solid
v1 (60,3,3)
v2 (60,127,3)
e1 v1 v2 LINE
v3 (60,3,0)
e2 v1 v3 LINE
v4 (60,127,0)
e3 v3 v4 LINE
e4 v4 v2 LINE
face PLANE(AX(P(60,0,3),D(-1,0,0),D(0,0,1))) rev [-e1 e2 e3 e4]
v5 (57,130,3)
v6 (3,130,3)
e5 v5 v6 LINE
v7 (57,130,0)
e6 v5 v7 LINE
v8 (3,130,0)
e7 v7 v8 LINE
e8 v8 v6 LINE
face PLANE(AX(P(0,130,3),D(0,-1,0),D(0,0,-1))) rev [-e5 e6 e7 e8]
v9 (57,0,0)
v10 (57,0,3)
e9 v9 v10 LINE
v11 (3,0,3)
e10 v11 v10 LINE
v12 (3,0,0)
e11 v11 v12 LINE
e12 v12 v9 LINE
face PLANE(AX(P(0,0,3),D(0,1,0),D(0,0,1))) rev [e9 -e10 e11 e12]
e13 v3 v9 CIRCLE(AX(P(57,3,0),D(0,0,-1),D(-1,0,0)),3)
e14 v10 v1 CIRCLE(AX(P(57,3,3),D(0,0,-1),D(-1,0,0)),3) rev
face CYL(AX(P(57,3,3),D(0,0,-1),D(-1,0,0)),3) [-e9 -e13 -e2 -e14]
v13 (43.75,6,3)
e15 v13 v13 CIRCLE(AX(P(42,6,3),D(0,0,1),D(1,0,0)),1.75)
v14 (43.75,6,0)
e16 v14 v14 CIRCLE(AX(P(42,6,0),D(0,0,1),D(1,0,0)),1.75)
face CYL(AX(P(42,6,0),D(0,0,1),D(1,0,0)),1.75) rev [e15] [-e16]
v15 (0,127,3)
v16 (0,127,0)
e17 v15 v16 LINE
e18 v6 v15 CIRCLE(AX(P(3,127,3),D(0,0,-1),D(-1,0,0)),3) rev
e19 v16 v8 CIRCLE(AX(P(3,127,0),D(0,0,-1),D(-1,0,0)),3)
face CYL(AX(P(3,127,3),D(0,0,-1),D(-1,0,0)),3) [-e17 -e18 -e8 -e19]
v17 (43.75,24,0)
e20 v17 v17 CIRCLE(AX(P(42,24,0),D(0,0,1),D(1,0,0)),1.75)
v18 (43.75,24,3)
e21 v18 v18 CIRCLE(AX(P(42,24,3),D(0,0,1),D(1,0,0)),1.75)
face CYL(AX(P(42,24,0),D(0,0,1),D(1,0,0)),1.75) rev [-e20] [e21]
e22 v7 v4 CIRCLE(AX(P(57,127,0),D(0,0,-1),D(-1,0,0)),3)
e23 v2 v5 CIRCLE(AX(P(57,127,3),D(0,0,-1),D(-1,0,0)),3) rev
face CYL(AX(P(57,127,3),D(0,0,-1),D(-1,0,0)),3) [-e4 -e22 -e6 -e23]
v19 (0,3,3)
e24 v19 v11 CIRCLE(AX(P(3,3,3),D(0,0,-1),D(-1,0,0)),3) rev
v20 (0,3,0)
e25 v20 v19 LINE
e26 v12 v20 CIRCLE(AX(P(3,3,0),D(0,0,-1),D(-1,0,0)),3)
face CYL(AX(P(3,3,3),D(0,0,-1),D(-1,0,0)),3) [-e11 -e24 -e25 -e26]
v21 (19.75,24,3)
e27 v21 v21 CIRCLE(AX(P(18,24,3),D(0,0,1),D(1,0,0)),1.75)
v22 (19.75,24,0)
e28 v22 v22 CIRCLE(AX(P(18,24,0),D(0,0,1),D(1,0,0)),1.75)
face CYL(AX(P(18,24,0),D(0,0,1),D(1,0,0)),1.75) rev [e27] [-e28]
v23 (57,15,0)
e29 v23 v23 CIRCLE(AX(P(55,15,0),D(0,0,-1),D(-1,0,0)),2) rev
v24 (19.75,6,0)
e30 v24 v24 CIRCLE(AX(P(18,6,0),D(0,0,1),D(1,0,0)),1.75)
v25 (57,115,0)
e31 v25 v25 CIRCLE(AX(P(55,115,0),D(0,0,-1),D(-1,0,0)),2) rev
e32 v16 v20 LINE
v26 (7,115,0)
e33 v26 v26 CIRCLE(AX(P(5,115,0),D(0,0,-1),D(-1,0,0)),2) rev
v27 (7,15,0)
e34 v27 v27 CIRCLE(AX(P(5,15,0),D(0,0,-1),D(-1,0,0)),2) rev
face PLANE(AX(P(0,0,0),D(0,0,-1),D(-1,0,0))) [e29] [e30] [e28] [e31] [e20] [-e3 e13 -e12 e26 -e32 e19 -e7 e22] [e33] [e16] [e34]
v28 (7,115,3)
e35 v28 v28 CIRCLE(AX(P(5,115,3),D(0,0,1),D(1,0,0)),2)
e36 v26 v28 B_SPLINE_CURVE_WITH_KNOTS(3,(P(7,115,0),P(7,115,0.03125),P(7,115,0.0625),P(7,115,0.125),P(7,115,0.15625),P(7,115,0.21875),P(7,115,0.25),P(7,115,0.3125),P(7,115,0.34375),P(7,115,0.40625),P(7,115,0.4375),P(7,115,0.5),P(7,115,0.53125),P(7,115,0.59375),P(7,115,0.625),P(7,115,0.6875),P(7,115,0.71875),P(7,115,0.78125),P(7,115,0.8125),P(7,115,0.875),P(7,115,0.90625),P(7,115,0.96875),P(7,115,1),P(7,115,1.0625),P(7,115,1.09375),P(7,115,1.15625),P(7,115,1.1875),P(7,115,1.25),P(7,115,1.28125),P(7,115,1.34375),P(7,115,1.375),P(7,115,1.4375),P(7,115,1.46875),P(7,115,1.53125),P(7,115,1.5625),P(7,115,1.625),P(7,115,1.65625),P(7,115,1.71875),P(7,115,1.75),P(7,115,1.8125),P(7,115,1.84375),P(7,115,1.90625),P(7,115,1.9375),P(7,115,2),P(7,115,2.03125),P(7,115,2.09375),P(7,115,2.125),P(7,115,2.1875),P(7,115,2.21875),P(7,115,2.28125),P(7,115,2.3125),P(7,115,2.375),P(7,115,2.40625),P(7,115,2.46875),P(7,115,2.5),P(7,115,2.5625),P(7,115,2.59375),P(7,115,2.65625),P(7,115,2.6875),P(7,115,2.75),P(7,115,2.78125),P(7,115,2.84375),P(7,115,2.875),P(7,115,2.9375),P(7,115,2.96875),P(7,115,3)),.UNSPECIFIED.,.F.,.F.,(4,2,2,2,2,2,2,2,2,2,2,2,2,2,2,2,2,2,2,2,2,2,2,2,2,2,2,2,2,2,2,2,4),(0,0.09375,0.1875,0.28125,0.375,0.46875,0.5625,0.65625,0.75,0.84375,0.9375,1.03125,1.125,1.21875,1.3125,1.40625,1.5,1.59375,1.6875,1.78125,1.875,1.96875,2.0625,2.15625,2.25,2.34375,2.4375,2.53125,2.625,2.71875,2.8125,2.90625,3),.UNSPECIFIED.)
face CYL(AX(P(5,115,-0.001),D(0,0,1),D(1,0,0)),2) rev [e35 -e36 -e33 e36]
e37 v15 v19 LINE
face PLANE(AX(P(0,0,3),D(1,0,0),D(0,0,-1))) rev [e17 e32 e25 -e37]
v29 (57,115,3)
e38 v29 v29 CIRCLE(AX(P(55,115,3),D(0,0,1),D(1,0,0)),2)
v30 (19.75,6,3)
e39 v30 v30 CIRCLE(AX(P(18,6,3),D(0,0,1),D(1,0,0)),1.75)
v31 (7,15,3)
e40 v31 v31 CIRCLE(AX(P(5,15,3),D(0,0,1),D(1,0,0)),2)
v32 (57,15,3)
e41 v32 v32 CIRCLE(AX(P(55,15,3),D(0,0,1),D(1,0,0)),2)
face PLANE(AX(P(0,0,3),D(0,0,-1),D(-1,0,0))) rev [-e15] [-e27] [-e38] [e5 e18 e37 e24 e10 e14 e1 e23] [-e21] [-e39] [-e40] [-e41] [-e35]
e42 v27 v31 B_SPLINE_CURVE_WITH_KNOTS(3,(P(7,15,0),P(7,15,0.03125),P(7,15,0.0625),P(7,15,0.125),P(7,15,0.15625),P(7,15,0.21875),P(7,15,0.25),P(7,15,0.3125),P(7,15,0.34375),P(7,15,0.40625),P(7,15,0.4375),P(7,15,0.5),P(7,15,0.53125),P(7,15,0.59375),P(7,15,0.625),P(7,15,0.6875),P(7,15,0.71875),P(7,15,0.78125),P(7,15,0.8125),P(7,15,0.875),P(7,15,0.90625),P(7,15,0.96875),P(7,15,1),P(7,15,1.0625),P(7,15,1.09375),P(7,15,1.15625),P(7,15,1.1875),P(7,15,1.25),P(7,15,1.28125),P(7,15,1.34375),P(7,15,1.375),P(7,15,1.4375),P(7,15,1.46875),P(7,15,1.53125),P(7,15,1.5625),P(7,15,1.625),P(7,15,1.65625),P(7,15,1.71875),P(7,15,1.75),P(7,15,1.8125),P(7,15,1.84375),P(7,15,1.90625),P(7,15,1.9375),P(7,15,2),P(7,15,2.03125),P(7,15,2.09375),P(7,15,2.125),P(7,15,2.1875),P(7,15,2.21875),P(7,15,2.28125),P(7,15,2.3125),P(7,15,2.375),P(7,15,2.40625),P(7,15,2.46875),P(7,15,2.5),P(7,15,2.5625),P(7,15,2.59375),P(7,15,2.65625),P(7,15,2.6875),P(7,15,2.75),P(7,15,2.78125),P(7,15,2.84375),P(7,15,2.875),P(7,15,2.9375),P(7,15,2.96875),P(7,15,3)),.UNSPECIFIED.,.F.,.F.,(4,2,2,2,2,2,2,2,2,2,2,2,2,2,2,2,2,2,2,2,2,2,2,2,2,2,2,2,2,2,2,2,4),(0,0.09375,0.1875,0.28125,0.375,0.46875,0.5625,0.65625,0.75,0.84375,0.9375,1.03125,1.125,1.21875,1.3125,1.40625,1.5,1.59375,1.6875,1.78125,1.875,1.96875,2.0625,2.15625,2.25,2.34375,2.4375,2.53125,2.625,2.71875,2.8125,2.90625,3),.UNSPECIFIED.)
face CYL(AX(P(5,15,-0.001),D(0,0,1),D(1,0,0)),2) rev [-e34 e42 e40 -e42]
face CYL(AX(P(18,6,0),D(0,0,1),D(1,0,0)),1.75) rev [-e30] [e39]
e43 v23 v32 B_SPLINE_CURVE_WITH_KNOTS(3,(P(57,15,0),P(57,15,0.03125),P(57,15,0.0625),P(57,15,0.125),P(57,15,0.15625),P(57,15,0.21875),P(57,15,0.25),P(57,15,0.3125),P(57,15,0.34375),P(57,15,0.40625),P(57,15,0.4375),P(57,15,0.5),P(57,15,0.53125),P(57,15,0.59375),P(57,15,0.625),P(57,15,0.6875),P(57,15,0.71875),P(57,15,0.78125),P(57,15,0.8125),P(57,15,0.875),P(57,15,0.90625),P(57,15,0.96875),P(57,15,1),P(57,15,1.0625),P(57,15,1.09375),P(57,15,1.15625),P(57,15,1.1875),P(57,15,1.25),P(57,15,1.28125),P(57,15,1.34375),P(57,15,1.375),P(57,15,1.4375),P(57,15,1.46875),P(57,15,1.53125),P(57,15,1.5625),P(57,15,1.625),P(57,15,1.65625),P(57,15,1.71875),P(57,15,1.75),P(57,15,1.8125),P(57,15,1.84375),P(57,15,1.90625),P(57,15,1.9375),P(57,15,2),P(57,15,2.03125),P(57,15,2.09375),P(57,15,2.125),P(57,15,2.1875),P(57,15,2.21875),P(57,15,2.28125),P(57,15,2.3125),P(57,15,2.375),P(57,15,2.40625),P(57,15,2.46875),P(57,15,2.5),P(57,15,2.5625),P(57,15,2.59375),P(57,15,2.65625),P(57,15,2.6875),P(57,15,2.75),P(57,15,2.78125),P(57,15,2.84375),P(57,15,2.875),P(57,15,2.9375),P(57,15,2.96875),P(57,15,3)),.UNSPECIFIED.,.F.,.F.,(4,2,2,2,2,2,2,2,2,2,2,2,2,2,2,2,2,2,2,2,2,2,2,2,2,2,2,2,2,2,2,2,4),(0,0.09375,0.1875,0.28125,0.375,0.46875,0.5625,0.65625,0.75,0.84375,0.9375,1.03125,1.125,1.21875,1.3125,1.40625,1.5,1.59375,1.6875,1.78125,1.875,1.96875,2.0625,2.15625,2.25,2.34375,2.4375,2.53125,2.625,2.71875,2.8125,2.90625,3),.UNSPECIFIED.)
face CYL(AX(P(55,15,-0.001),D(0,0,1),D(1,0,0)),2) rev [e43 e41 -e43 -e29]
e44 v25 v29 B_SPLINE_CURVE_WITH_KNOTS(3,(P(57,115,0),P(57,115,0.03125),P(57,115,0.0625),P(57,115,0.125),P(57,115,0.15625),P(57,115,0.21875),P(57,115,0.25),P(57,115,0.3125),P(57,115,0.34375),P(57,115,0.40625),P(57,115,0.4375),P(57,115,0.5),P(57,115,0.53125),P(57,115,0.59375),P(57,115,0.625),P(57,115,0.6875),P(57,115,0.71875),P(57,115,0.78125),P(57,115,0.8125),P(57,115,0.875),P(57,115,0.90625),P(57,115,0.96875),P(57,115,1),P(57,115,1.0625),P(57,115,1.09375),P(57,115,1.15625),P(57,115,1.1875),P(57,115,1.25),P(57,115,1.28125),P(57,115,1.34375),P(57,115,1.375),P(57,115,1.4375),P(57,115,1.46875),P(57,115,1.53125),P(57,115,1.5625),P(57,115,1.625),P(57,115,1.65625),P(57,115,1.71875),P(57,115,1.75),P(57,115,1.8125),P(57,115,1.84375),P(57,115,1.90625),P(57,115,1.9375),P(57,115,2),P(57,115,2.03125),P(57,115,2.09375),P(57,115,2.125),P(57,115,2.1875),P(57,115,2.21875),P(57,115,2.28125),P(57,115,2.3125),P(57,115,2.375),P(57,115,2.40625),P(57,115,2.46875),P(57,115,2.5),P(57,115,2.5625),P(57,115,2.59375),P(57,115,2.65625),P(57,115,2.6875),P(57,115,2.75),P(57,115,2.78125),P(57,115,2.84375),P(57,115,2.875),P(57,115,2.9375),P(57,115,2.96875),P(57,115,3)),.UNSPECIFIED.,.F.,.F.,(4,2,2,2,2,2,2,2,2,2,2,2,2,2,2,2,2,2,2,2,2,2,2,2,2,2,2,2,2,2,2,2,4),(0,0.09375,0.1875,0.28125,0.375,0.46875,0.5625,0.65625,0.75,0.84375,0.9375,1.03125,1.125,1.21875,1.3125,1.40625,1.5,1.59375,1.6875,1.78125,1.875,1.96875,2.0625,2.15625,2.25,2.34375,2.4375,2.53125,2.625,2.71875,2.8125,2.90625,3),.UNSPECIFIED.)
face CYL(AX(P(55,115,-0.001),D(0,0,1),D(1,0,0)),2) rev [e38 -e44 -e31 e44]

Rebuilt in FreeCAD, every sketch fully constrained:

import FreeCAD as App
import Part
import Sketcher
from FreeCAD import Vector


def edges_at(feature, points):
    """Names of the edges that pass closest to the given points."""
    edges = feature.Shape.Edges
    near = lambda p: min(range(len(edges)), key=lambda i: edges[i].distToShape(Part.Vertex(*p))[0])
    return sorted({f"Edge{near(p) + 1}" for p in points})


def add_polygon(sketch, points):
    """Adds a closed chain of lines whose ends are joined by coincident constraints."""
    first, n = sketch.GeometryCount, len(points)
    for a, b in zip(points, points[1:] + points[:1]):
        sketch.addGeometry(Part.LineSegment(App.Vector(*a, 0), App.Vector(*b, 0)), False)
    for i in range(n):
        sketch.addConstraint(Sketcher.Constraint("Coincident", first + i, 2, first + (i + 1) % n, 1))

doc = App.newDocument("Part")
body = doc.addObject("PartDesign::Body", "Body")

sketch1 = body.newObject("Sketcher::SketchObject", "Sketch")
sketch1.AttachmentSupport = (doc.getObject("XY_Plane"), [""])
sketch1.MapMode = "FlatFace"
add_polygon(sketch1, [(0, 130), (0, 0), (60, 0), (60, 130)])
sketch1.addConstraint([
    Sketcher.Constraint("Vertical", 0),
    Sketcher.Constraint("Horizontal", 1),
    Sketcher.Constraint("Vertical", 2),
    Sketcher.Constraint("Horizontal", 3),
    Sketcher.Constraint("Coincident", 0, 2, -1, 1),
    Sketcher.Constraint("DistanceX", 1, 1, 1, 2, 60.0),
    Sketcher.Constraint("DistanceY", 0, 2, 0, 1, 130.0),
])
pad1 = body.newObject("PartDesign::Pad", "Pad")
pad1.Profile = sketch1
pad1.Length = 3

sketch2 = body.newObject("Sketcher::SketchObject", "Sketch001")
sketch2.AttachmentSupport = (doc.getObject("XY_Plane"), [""])
sketch2.MapMode = "FlatFace"
sketch2.AttachmentOffset = App.Placement(Vector(0, 0, 3), App.Rotation())
sketch2.addGeometry(Part.Circle(Vector(5, 115, 0), Vector(0, 0, 1), 2), False)
sketch2.addConstraint([
    Sketcher.Constraint("Diameter", 0, 4.0),
    Sketcher.Constraint("DistanceX", -1, 1, 0, 3, 5.0),
    Sketcher.Constraint("DistanceY", -1, 1, 0, 3, 115.0),
])
pocket1 = body.newObject("PartDesign::Pocket", "Pocket")
pocket1.Profile = sketch2
pocket1.Type = "UpToFirst"

sketch3 = body.newObject("Sketcher::SketchObject", "Sketch002")
sketch3.AttachmentSupport = (doc.getObject("XY_Plane"), [""])
sketch3.MapMode = "FlatFace"
sketch3.AttachmentOffset = App.Placement(Vector(0, 0, 3), App.Rotation())
sketch3.addGeometry(Part.Circle(Vector(55, 115, 0), Vector(0, 0, 1), 2), False)
sketch3.addConstraint([
    Sketcher.Constraint("Diameter", 0, 4.0),
    Sketcher.Constraint("DistanceX", -1, 1, 0, 3, 55.0),
    Sketcher.Constraint("DistanceY", -1, 1, 0, 3, 115.0),
])
pocket2 = body.newObject("PartDesign::Pocket", "Pocket001")
pocket2.Profile = sketch3
pocket2.Type = "UpToFirst"

sketch4 = body.newObject("Sketcher::SketchObject", "Sketch003")
sketch4.AttachmentSupport = (doc.getObject("XY_Plane"), [""])
sketch4.MapMode = "FlatFace"
sketch4.AttachmentOffset = App.Placement(Vector(0, 0, 3), App.Rotation())
sketch4.addGeometry(Part.Circle(Vector(5, 15, 0), Vector(0, 0, 1), 2), False)
sketch4.addConstraint([
    Sketcher.Constraint("Diameter", 0, 4.0),
    Sketcher.Constraint("DistanceX", -1, 1, 0, 3, 5.0),
    Sketcher.Constraint("DistanceY", -1, 1, 0, 3, 15.0),
])
pocket3 = body.newObject("PartDesign::Pocket", "Pocket002")
pocket3.Profile = sketch4
pocket3.Type = "UpToFirst"

sketch5 = body.newObject("Sketcher::SketchObject", "Sketch004")
sketch5.AttachmentSupport = (doc.getObject("XY_Plane"), [""])
sketch5.MapMode = "FlatFace"
sketch5.AttachmentOffset = App.Placement(Vector(0, 0, 3), App.Rotation())
sketch5.addGeometry(Part.Circle(Vector(55, 15, 0), Vector(0, 0, 1), 2), False)
sketch5.addConstraint([
    Sketcher.Constraint("Diameter", 0, 4.0),
    Sketcher.Constraint("DistanceX", -1, 1, 0, 3, 55.0),
    Sketcher.Constraint("DistanceY", -1, 1, 0, 3, 15.0),
])
pocket4 = body.newObject("PartDesign::Pocket", "Pocket003")
pocket4.Profile = sketch5
pocket4.Type = "UpToFirst"
doc.recompute()

fillet = body.newObject("PartDesign::Fillet", "Fillet")
fillet.Base = (pocket4, edges_at(pocket4, [
    (0, 130, 1.5),
    (60, 130, 1.5),
    (60, 0, 1.5),
    (0, 0, 1.5),
]))
fillet.Radius = 3

sketch6 = body.newObject("Sketcher::SketchObject", "Sketch005")
sketch6.AttachmentSupport = (doc.getObject("XY_Plane"), [""])
sketch6.MapMode = "FlatFace"
sketch6.AttachmentOffset = App.Placement(Vector(0, 0, 3), App.Rotation())
sketch6.addGeometry([
    Part.Circle(Vector(18, 24, 0), Vector(0, 0, 1), 1.8),
    Part.Circle(Vector(42, 24, 0), Vector(0, 0, 1), 1.8),
    Part.Circle(Vector(42, 6, 0), Vector(0, 0, 1), 1.8),
    Part.Circle(Vector(18, 6, 0), Vector(0, 0, 1), 1.8),
], False)
sketch6.addConstraint([
    Sketcher.Constraint("Equal", 0, 1),
    Sketcher.Constraint("Equal", 1, 2),
    Sketcher.Constraint("Equal", 2, 3),
    Sketcher.Constraint("Horizontal", 0, 3, 1, 3),
    Sketcher.Constraint("Horizontal", 2, 3, 3, 3),
    Sketcher.Constraint("Vertical", 1, 3, 2, 3),
    Sketcher.Constraint("Vertical", 0, 3, 3, 3),
    Sketcher.Constraint("Diameter", 0, 3.5),
    Sketcher.Constraint("DistanceX", -1, 1, 0, 3, 18.0),
    Sketcher.Constraint("DistanceY", -1, 1, 0, 3, 24.0),
    Sketcher.Constraint("DistanceX", -1, 1, 1, 3, 42.0),
    Sketcher.Constraint("DistanceY", -1, 1, 2, 3, 6.0),
])
pocket5 = body.newObject("PartDesign::Pocket", "Pocket004")
pocket5.Profile = sketch6
pocket5.Length = 3

doc.recompute()
